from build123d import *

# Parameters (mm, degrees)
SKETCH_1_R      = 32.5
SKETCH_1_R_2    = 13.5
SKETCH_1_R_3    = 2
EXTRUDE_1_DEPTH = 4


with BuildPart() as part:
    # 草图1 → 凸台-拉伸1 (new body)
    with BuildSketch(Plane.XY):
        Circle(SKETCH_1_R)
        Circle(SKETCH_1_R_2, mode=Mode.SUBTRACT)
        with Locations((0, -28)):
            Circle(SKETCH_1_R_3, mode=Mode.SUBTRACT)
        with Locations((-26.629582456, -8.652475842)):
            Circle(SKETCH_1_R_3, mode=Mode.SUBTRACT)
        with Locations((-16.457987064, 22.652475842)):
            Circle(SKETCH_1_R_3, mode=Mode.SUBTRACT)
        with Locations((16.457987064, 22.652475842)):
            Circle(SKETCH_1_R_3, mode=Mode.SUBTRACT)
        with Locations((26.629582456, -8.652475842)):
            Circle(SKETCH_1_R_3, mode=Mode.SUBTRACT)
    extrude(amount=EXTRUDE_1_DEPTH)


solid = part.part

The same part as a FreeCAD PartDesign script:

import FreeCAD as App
import Part
import Sketcher

V = App.Vector

doc = App.newDocument("Part")
body = doc.addObject("PartDesign::Body", "Body")

# Sketch on XY plane
sketch1 = body.newObject("Sketcher::SketchObject", "Sketch")
sketch1.AttachmentSupport = (doc.getObject("XY_Plane"), [""])
sketch1.MapMode = "FlatFace"
sketch1.addGeometry(Part.Circle(V(0, 0, 0), V(0, 0, 1), 32.5), False)
sketch1.addGeometry(Part.Circle(V(0, -28, 0), V(0, 0, 1), 2), False)
sketch1.addGeometry(Part.Circle(V(-26.629582, -8.652476, 0), V(0, 0, 1), 2), False)
sketch1.addGeometry(Part.Circle(V(26.629582, -8.652476, 0), V(0, 0, 1), 2), False)
sketch1.addGeometry(Part.Circle(V(0, 0, 0), V(0, 0, 1), 13.5), False)
sketch1.addGeometry(Part.Circle(V(-16.457987, 22.652476, 0), V(0, 0, 1), 2), False)
sketch1.addGeometry(Part.Circle(V(16.457987, 22.652476, 0), V(0, 0, 1), 2), False)
sketch1.addConstraint(Sketcher.Constraint("Coincident", 0, 3, -1, 1))
sketch1.addConstraint(Sketcher.Constraint("Coincident", 4, 3, -1, 1))
sketch1.addConstraint(Sketcher.Constraint("Equal", 1, 2))
sketch1.addConstraint(Sketcher.Constraint("Equal", 2, 3))
sketch1.addConstraint(Sketcher.Constraint("Equal", 3, 5))
sketch1.addConstraint(Sketcher.Constraint("Equal", 5, 6))
sketch1.addConstraint(Sketcher.Constraint("Symmetric", 2, 3, 3, 3, -2))
sketch1.addConstraint(Sketcher.Constraint("Symmetric", 5, 3, 6, 3, -2))
sketch1.addConstraint(Sketcher.Constraint("PointOnObject", 1, 3, -2))
sketch1.addConstraint(Sketcher.Constraint("Diameter", 0, 65.0))
sketch1.addConstraint(Sketcher.Constraint("Diameter", 1, 4.0))
sketch1.addConstraint(Sketcher.Constraint("Diameter", 4, 27.0))
sketch1.addConstraint(Sketcher.Constraint("DistanceY", 1, 3, -1, 1, 28.0))
sketch1.addConstraint(Sketcher.Constraint("DistanceY", 2, 3, 5, 3, 31.304952))
sketch1.addConstraint(Sketcher.Constraint("DistanceX", 5, 3, 3, 3, 43.08757))
sketch1.addConstraint(Sketcher.Constraint("DistanceX", 2, 3, -1, 1, 26.629582))
sketch1.addConstraint(Sketcher.Constraint("DistanceY", 2, 3, -1, 1, 8.652476))
pad1 = body.newObject("PartDesign::Pad", "Pad")
pad1.Profile = sketch1
pad1.Length = 4

doc.recompute()
